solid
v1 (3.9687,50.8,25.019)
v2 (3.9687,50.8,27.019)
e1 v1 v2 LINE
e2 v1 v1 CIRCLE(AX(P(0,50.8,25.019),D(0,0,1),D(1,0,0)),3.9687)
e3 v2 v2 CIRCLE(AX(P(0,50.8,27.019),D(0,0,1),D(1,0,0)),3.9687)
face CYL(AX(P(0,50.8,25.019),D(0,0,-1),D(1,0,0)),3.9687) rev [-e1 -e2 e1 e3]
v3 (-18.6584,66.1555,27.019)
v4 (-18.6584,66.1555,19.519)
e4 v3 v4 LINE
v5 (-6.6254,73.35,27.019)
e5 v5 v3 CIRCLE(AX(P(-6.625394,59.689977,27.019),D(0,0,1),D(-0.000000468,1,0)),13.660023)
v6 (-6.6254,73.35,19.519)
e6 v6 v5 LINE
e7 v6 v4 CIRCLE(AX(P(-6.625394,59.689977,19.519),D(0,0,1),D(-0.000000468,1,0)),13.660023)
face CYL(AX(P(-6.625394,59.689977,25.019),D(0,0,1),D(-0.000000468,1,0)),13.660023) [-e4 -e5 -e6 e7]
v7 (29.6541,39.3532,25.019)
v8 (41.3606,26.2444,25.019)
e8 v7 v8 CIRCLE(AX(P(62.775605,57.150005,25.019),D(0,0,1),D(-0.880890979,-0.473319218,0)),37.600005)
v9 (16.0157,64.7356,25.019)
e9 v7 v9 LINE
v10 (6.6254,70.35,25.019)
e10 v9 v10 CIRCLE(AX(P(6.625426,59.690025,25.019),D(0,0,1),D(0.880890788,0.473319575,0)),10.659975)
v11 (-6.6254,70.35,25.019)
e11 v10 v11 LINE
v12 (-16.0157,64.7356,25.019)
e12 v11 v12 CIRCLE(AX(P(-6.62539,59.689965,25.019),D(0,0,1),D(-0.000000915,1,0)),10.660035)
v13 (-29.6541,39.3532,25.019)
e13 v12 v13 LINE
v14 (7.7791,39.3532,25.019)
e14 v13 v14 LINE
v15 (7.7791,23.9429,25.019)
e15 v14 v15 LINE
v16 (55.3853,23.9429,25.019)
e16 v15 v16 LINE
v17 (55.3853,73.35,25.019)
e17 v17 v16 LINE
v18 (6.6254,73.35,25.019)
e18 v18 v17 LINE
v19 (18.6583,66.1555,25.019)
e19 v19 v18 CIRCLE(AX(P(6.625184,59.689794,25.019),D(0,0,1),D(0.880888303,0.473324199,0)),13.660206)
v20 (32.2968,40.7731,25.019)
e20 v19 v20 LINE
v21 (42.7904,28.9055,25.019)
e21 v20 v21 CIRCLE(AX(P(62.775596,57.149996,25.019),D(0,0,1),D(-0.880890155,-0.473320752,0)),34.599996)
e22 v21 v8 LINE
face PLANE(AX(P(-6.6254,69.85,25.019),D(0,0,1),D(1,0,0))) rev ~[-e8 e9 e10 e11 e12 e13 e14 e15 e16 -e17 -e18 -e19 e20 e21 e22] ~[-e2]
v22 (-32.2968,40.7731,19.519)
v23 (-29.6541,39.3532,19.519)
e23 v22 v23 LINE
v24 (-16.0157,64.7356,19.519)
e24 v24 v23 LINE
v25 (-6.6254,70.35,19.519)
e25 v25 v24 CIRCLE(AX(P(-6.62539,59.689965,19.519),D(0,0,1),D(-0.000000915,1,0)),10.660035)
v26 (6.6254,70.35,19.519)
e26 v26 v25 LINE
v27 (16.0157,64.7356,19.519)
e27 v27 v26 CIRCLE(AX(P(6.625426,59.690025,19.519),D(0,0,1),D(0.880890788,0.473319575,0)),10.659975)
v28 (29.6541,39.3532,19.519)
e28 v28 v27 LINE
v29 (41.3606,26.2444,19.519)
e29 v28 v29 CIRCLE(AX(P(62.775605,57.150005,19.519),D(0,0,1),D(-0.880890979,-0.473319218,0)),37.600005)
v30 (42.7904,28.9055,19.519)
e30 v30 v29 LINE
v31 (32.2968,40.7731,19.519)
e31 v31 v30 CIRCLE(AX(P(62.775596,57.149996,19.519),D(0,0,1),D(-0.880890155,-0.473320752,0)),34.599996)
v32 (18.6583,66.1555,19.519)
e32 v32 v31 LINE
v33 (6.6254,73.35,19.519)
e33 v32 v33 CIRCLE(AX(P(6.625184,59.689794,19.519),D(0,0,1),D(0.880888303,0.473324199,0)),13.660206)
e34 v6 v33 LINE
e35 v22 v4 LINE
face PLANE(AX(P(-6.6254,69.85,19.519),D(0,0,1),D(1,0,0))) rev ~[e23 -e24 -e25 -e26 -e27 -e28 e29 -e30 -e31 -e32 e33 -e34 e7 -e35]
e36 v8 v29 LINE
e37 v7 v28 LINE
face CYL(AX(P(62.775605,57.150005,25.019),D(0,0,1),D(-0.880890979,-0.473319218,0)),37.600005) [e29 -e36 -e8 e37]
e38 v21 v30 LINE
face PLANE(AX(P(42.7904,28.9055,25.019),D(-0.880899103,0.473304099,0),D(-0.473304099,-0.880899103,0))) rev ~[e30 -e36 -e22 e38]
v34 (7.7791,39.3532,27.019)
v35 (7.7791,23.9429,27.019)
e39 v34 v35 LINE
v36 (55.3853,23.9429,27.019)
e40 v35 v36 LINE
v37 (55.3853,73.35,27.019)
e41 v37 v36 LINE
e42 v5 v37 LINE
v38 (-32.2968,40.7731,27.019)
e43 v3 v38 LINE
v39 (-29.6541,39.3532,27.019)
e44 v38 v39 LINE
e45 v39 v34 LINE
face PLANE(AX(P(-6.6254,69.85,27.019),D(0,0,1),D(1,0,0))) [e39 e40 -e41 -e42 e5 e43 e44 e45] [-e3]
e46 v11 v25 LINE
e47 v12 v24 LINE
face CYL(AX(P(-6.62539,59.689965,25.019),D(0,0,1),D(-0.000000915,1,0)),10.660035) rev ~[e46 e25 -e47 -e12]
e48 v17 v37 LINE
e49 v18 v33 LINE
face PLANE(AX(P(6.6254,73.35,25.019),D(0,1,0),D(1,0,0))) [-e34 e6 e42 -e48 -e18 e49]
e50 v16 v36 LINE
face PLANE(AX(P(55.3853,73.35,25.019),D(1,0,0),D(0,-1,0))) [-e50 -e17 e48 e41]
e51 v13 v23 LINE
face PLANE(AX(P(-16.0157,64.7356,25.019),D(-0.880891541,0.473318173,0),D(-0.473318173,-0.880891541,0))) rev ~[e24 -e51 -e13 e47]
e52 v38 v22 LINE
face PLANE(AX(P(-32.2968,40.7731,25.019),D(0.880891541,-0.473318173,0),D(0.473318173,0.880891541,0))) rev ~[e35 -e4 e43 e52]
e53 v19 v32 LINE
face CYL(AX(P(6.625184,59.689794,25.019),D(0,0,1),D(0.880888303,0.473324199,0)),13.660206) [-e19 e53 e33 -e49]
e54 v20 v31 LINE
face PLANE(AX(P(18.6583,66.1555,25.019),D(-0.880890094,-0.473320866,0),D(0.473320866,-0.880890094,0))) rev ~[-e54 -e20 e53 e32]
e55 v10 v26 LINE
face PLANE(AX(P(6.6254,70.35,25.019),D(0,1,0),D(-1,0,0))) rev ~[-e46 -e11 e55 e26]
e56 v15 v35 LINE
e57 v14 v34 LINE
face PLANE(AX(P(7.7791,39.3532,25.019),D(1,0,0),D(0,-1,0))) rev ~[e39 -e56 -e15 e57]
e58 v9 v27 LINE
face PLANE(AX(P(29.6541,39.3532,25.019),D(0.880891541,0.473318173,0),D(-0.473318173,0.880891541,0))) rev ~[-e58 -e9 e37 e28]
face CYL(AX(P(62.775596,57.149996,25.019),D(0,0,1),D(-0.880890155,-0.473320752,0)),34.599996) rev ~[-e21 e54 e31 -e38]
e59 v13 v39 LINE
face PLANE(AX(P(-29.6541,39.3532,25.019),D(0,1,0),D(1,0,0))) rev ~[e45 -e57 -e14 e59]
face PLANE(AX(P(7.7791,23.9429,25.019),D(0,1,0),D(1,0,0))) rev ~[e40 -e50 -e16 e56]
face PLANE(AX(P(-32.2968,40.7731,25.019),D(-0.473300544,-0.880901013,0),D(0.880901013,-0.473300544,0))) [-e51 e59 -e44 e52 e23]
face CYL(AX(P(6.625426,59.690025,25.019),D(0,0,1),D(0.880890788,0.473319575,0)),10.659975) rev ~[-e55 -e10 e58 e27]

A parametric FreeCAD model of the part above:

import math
import FreeCAD as App
import Part
import Sketcher
Q = App.Units.Quantity

doc = App.newDocument("Part")
body = doc.addObject("PartDesign::Body", "Body")

sketch1 = body.newObject("Sketcher::SketchObject", "Sketch")
sketch1.AttachmentSupport = (doc.getObject("XY_Plane"), [""])
sketch1.MapMode = "FlatFace"
sketch1.AttachmentOffset = App.Placement(App.Vector(0, 0, 25.019), App.Rotation())
sketch1.addGeometry([
    Part.LineSegment(App.Vector(16.0157, 64.7356, 0), App.Vector(29.6541, 39.3532, 0)),
    Part.ArcOfCircle(Part.Circle(App.Vector(62.7756, 57.15, 0), App.Vector(0, 0, 1), 37.599998), math.radians(-151.750032), math.radians(-124.718727)),
    Part.LineSegment(App.Vector(41.3606, 26.2444, 0), App.Vector(42.7904, 28.9055, 0)),
    Part.ArcOfCircle(Part.Circle(App.Vector(62.7756, 57.15, 0), App.Vector(0, 0, 1), 34.600001), math.radians(-151.749927), math.radians(-125.282403)),
    Part.LineSegment(App.Vector(32.2968, 40.7731, 0), App.Vector(18.6583, 66.1555, 0)),
    Part.ArcOfCircle(Part.Circle(App.Vector(6.6254, 59.69, 0), App.Vector(0, 0, 1), 13.659918), math.radians(28.249962), math.radians(90)),
    Part.LineSegment(App.Vector(6.6254, 73.35, 0), App.Vector(-6.6254, 73.35, 0)),
    Part.ArcOfCircle(Part.Circle(App.Vector(-6.6254, 59.69, 0), App.Vector(0, 0, 1), 13.66), math.radians(90), math.radians(151.750237)),
    Part.LineSegment(App.Vector(-18.6584, 66.1555, 0), App.Vector(-32.2968, 40.7731, 0)),
    Part.LineSegment(App.Vector(-32.2968, 40.7731, 0), App.Vector(-29.6541, 39.3532, 0)),
    Part.LineSegment(App.Vector(-29.6541, 39.3532, 0), App.Vector(-16.0157, 64.7356, 0)),
    Part.ArcOfCircle(Part.Circle(App.Vector(-6.6254, 59.69, 0), App.Vector(0, 0, 1), 10.66), math.radians(90), math.radians(151.749954)),
    Part.LineSegment(App.Vector(-6.6254, 70.35, 0), App.Vector(6.6254, 70.35, 0)),
    Part.ArcOfCircle(Part.Circle(App.Vector(6.6254, 59.69, 0), App.Vector(0, 0, 1), 10.66001), math.radians(28.250046), math.radians(90)),
], False)
sketch1.addConstraint([
    Sketcher.Constraint("Coincident", 0, 2, 1, 1),
    Sketcher.Constraint("Coincident", 1, 2, 2, 1),
    Sketcher.Constraint("Coincident", 2, 2, 3, 2),
    Sketcher.Constraint("Coincident", 3, 1, 4, 1),
    Sketcher.Constraint("Coincident", 4, 2, 5, 1),
    Sketcher.Constraint("Coincident", 5, 2, 6, 1),
    Sketcher.Constraint("Coincident", 6, 2, 7, 1),
    Sketcher.Constraint("Coincident", 7, 2, 8, 1),
    Sketcher.Constraint("Coincident", 8, 2, 9, 1),
    Sketcher.Constraint("Coincident", 9, 2, 10, 1),
    Sketcher.Constraint("Coincident", 10, 2, 11, 2),
    Sketcher.Constraint("Coincident", 11, 1, 12, 1),
    Sketcher.Constraint("Coincident", 12, 2, 13, 2),
    Sketcher.Constraint("Coincident", 13, 1, 0, 1),
    Sketcher.Constraint("Horizontal", 6),
    Sketcher.Constraint("Horizontal", 12),
    Sketcher.Constraint("Coincident", 3, 3, 1, 3),
    Sketcher.Constraint("Coincident", 11, 3, 7, 3),
    Sketcher.Constraint("Coincident", 13, 3, 5, 3),
    Sketcher.Constraint("Distance", 9, Q("3 mm")),
    Sketcher.Constraint("DistanceY", 11, 1, 6, 2, Q("3 mm")),
    Sketcher.Constraint("Radius", 1, Q("37.6 mm")),
    Sketcher.Constraint("Radius", 3, Q("34.6 mm")),
    Sketcher.Constraint("Radius", 5, Q("13.66 mm")),
    Sketcher.Constraint("Radius", 7, Q("13.66 mm")),
    Sketcher.Constraint("DistanceY", -1, 1, 1, 3, Q("57.15 mm")),
    Sketcher.Constraint("DistanceY", -1, 1, 5, 3, Q("59.69 mm")),
    Sketcher.Constraint("DistanceY", 0, 2, 3, 1, Q("1.42 mm")),
    Sketcher.Constraint("DistanceY", 9, 2, 8, 2, Q("1.42 mm")),
    Sketcher.Constraint("DistanceY", 10, 2, 7, 2, Q("1.42 mm")),
    Sketcher.Constraint("DistanceY", 13, 1, 4, 2, Q("1.42 mm")),
    Sketcher.Constraint("Distance", 2, Q("3.021 mm")),
    Sketcher.Constraint("DistanceX", 6, 2, 6, 1, Q("13.2508 mm")),
    Sketcher.Constraint("DistanceX", 12, 1, 12, 2, Q("13.2508 mm")),
    Sketcher.Constraint("DistanceX", -1, 1, 0, 2, Q("29.654 mm")),
    Sketcher.Constraint("DistanceY", -1, 1, 3, 1, Q("40.773 mm")),
    Sketcher.Constraint("DistanceY", -1, 1, 8, 2, Q("40.773 mm")),
    Sketcher.Constraint("DistanceX", 9, 2, -1, 1, Q("29.654 mm")),
    Sketcher.Constraint("DistanceX", 7, 3, 1, 3, Q("69.401 mm")),
    Sketcher.Constraint("DistanceX", 1, 2, 1, 3, Q("21.415 mm")),
    Sketcher.Constraint("DistanceX", 5, 3, 2, 2, Q("36.165 mm")),
    Sketcher.Constraint("DistanceX", 5, 3, 4, 2, Q("12.033 mm")),
    Sketcher.Constraint("DistanceX", 5, 2, 4, 2, Q("12.033 mm")),
    Sketcher.Constraint("DistanceX", 7, 2, 7, 3, Q("12.033 mm")),
    Sketcher.Constraint("DistanceX", 7, 2, 11, 1, Q("12.033 mm")),
])
pad1 = body.newObject("PartDesign::Pad", "Pad")
pad1.Profile = sketch1
pad1.Length = 5.5
pad1.Reversed = True

sketch2 = body.newObject("Sketcher::SketchObject", "Sketch001")
sketch2.AttachmentSupport = (doc.getObject("XY_Plane"), [""])
sketch2.MapMode = "FlatFace"
sketch2.AttachmentOffset = App.Placement(App.Vector(0, 0, 25.019), App.Rotation())
sketch2.addGeometry([
    Part.LineSegment(App.Vector(-18.7, 66.2, 0), App.Vector(-32.3, 40.8, 0)),
    Part.LineSegment(App.Vector(-32.3, 40.8, 0), App.Vector(-29.7, 39.4, 0)),
    Part.LineSegment(App.Vector(-29.7, 39.4, 0), App.Vector(7.8, 39.4, 0)),
    Part.LineSegment(App.Vector(7.8, 39.4, 0), App.Vector(7.8, 23.9, 0)),
    Part.LineSegment(App.Vector(7.8, 23.9, 0), App.Vector(55.4, 23.9, 0)),
    Part.LineSegment(App.Vector(55.4, 23.9, 0), App.Vector(55.4, 73.3, 0)),
    Part.LineSegment(App.Vector(55.4, 73.3, 0), App.Vector(-6.6, 73.3, 0)),
    Part.ArcOfCircle(Part.Circle(App.Vector(-6.6, 59.7, 0), App.Vector(0, 0, 1), 13.7), math.radians(90), math.radians(152)),
    Part.Circle(App.Vector(0, 50.8, 0), App.Vector(0, 0, 1), 4),
], False)
sketch2.addConstraint([
    Sketcher.Constraint("Coincident", 0, 2, 1, 1),
    Sketcher.Constraint("Coincident", 1, 2, 2, 1),
    Sketcher.Constraint("Coincident", 2, 2, 3, 1),
    Sketcher.Constraint("Coincident", 3, 2, 4, 1),
    Sketcher.Constraint("Coincident", 4, 2, 5, 1),
    Sketcher.Constraint("Coincident", 5, 2, 6, 1),
    Sketcher.Constraint("Tangent", 6, 2, 7, 1),
    Sketcher.Constraint("Tangent", 7, 2, 0, 1),
    Sketcher.Constraint("Horizontal", 2),
    Sketcher.Constraint("Vertical", 3),
    Sketcher.Constraint("Horizontal", 4),
    Sketcher.Constraint("Vertical", 5),
    Sketcher.Constraint("Horizontal", 6),
    Sketcher.Constraint("PointOnObject", 8, 3, -2),
    Sketcher.Constraint("Perpendicular", 0, 1),
    Sketcher.Constraint("Radius", 7, Q("13.66 mm")),
    Sketcher.Constraint("Distance", 1, Q("3 mm")),
    Sketcher.Constraint("Diameter", 8, Q("7.9374 mm")),
    Sketcher.Constraint("DistanceY", -1, 1, 8, 3, Q("50.8 mm")),
    Sketcher.Constraint("Angle", 0, Q("-118.25 deg")),
    Sketcher.Constraint("DistanceY", 5, 1, 5, 2, Q("49.407 mm")),
    Sketcher.Constraint("DistanceY", -1, 1, 7, 3, Q("59.69 mm")),
    Sketcher.Constraint("DistanceX", 2, 1, 2, 2, Q("37.4332 mm")),
    Sketcher.Constraint("DistanceX", 4, 1, 4, 2, Q("47.6062 mm")),
    Sketcher.Constraint("DistanceX", 6, 2, 6, 1, Q("62.0107 mm")),
    Sketcher.Constraint("DistanceX", 1, 2, -1, 1, Q("29.654 mm")),
])
pad2 = body.newObject("PartDesign::Pad", "Pad001")
pad2.Profile = sketch2
pad2.Length = 2

doc.recompute()
